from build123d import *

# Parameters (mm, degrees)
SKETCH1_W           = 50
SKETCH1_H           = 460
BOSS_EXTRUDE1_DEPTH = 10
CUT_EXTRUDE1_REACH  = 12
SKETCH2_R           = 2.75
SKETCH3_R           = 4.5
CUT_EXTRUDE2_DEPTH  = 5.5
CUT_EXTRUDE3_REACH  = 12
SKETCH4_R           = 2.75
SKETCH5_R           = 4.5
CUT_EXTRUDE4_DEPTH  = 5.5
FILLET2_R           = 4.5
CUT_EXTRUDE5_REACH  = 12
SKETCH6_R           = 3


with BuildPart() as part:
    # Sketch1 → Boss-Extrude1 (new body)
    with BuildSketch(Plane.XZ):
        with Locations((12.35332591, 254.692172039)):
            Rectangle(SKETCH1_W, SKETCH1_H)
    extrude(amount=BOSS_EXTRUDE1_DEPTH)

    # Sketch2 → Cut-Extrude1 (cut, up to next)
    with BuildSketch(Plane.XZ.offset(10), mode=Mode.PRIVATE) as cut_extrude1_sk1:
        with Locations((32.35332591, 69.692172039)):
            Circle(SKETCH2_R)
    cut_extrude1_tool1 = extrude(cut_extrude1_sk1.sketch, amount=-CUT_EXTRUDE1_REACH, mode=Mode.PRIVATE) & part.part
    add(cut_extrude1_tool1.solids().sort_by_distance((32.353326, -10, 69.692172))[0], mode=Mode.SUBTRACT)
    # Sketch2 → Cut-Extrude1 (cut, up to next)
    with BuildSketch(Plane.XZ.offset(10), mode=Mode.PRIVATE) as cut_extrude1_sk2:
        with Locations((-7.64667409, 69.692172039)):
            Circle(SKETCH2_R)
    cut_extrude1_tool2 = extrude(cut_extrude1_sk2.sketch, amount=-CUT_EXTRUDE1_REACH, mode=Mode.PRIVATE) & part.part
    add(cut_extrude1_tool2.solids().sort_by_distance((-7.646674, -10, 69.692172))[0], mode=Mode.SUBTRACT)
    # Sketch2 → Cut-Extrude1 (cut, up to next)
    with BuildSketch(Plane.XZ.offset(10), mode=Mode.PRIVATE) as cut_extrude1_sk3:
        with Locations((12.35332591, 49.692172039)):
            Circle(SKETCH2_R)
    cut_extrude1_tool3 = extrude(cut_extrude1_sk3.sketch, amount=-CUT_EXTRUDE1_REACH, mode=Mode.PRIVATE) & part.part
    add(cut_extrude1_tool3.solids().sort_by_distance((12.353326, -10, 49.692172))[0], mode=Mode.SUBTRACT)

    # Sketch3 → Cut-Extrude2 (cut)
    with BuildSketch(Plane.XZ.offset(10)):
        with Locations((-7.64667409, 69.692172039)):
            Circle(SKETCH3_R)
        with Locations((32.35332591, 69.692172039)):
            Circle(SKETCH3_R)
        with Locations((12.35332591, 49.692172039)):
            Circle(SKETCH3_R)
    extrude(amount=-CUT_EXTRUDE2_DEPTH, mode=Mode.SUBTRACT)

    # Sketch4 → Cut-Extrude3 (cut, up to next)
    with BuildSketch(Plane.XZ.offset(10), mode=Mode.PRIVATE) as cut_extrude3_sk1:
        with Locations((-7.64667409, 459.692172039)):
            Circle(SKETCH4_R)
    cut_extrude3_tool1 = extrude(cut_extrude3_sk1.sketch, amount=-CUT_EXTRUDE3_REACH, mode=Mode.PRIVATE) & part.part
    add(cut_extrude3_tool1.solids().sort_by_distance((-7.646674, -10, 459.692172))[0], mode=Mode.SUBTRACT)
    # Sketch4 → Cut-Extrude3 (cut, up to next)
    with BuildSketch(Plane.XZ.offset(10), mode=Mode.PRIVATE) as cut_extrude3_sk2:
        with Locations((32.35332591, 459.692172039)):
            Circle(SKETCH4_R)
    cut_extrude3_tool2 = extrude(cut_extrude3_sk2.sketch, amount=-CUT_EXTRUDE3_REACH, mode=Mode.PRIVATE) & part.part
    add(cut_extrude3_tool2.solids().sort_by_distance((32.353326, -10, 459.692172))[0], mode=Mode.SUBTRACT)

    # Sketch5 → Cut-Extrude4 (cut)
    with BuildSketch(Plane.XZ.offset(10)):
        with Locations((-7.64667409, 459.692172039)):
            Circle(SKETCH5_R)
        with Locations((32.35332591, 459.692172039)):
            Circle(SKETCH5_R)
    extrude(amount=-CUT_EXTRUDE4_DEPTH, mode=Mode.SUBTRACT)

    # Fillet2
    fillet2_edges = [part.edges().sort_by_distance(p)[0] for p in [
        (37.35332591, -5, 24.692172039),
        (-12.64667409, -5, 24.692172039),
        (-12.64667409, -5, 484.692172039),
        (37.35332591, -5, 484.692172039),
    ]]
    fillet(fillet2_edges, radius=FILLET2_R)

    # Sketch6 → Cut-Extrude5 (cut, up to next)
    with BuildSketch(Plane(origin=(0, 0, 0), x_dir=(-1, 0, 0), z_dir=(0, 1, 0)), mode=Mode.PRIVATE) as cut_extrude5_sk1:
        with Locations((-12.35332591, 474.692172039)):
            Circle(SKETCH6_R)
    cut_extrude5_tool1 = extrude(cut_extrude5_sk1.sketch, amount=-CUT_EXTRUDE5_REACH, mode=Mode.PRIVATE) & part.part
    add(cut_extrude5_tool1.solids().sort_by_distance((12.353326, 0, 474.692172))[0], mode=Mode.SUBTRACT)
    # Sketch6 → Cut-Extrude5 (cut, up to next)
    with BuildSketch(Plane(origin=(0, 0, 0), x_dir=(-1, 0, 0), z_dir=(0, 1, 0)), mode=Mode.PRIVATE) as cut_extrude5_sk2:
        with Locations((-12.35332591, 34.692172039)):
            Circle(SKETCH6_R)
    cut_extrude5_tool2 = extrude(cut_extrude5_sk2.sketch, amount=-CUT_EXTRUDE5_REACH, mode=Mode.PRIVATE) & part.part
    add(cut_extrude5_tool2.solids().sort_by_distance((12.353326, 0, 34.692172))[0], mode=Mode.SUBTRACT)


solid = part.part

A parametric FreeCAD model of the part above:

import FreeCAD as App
import Part
import Sketcher
Q = App.Units.Quantity


def edges_at(feature, points):
    """Names of the edges that pass closest to the given points."""
    edges = feature.Shape.Edges
    near = lambda p: min(range(len(edges)), key=lambda i: edges[i].distToShape(Part.Vertex(*p))[0])
    return sorted({f"Edge{near(p) + 1}" for p in points})


def add_polygon(sketch, points):
    """Adds a closed chain of lines whose ends are joined by coincident constraints."""
    first, n = sketch.GeometryCount, len(points)
    for a, b in zip(points, points[1:] + points[:1]):
        sketch.addGeometry(Part.LineSegment(App.Vector(*a, 0), App.Vector(*b, 0)), False)
    for i in range(n):
        sketch.addConstraint(Sketcher.Constraint("Coincident", first + i, 2, first + (i + 1) % n, 1))

doc = App.newDocument("Part")
params = doc.addObject("Spreadsheet::Sheet", "Params")
for row, (alias, value) in enumerate([
    ("sketch1_width", "50 mm"),
    ("sketch1_height", "460 mm"),
    ("pad1_length", "10 mm"),
    ("sketch2_diameter", "5.5 mm"),
    ("sketch3_diameter", "5.5 mm"),
    ("sketch4_diameter", "5.5 mm"),
    ("sketch5_diameter", "9 mm"),
    ("pocket4_length", "5.5 mm"),
    ("sketch6_diameter", "5.5 mm"),
    ("sketch7_diameter", "5.5 mm"),
    ("sketch8_diameter", "9 mm"),
    ("pocket7_length", "5.5 mm"),
    ("fillet_radius", "4.5 mm"),
    ("sketch9_diameter", "6 mm"),
    ("sketch10_diameter", "6 mm"),
], start=1):
    params.set(f"A{row}", alias)
    params.set(f"B{row}", "=" + value)
    params.setAlias(f"B{row}", alias)

body = doc.addObject("PartDesign::Body", "Body")

# Sketch on XZ plane
sketch1 = body.newObject("Sketcher::SketchObject", "Sketch")
sketch1.AttachmentSupport = (doc.getObject("XZ_Plane"), [""])
sketch1.MapMode = "FlatFace"
add_polygon(sketch1, [(-12.646674, 484.692172), (-12.646674, 24.692172), (37.353326, 24.692172), (37.353326, 484.692172)])  # lines 0-3
sketch1.addConstraint([
    Sketcher.Constraint("Vertical", 0),
    Sketcher.Constraint("Horizontal", 1),
    Sketcher.Constraint("Vertical", 2),
    Sketcher.Constraint("Horizontal", 3),
    Sketcher.Constraint("DistanceX", 1, 1, 1, 2, Q("50 mm")),
    Sketcher.Constraint("DistanceY", 0, 2, 0, 1, Q("460 mm")),
    Sketcher.Constraint("DistanceX", 0, 2, -1, 1, Q("12.646674 mm")),
    Sketcher.Constraint("DistanceY", -1, 1, 0, 2, Q("24.692172 mm")),
])
sketch1.setExpression("Constraints[8]", "Params.sketch1_width")
sketch1.setExpression("Constraints[9]", "Params.sketch1_height")
pad1 = body.newObject("PartDesign::Pad", "Pad")
pad1.Profile = sketch1
pad1.setExpression("Length", "Params.pad1_length")

# Sketch on XZ plane
sketch2 = body.newObject("Sketcher::SketchObject", "Sketch001")
sketch2.AttachmentSupport = (doc.getObject("XZ_Plane"), [""])
sketch2.MapMode = "FlatFace"
sketch2.AttachmentOffset = App.Placement(App.Vector(0, 0, 10), App.Rotation())
sketch2.addGeometry(Part.Circle(App.Vector(32.353326, 69.692172, 0), App.Vector(0, 0, 1), 2.75), False)
sketch2.addConstraint([
    Sketcher.Constraint("Diameter", 0, Q("5.5 mm")),
    Sketcher.Constraint("DistanceX", -1, 1, 0, 3, Q("32.353326 mm")),
    Sketcher.Constraint("DistanceY", -1, 1, 0, 3, Q("69.692172 mm")),
])
sketch2.setExpression("Constraints[0]", "Params.sketch2_diameter")
pocket1 = body.newObject("PartDesign::Pocket", "Pocket")
pocket1.Profile = sketch2
pocket1.Type = "UpToFirst"

# Sketch on XZ plane
sketch3 = body.newObject("Sketcher::SketchObject", "Sketch002")
sketch3.AttachmentSupport = (doc.getObject("XZ_Plane"), [""])
sketch3.MapMode = "FlatFace"
sketch3.AttachmentOffset = App.Placement(App.Vector(0, 0, 10), App.Rotation())
sketch3.addGeometry(Part.Circle(App.Vector(-7.646674, 69.692172, 0), App.Vector(0, 0, 1), 2.75), False)
sketch3.addConstraint([
    Sketcher.Constraint("Diameter", 0, Q("5.5 mm")),
    Sketcher.Constraint("DistanceX", 0, 3, -1, 1, Q("7.646674 mm")),
    Sketcher.Constraint("DistanceY", -1, 1, 0, 3, Q("69.692172 mm")),
])
sketch3.setExpression("Constraints[0]", "Params.sketch3_diameter")
pocket2 = body.newObject("PartDesign::Pocket", "Pocket001")
pocket2.Profile = sketch3
pocket2.Type = "UpToFirst"

# Sketch on XZ plane
sketch4 = body.newObject("Sketcher::SketchObject", "Sketch003")
sketch4.AttachmentSupport = (doc.getObject("XZ_Plane"), [""])
sketch4.MapMode = "FlatFace"
sketch4.AttachmentOffset = App.Placement(App.Vector(0, 0, 10), App.Rotation())
sketch4.addGeometry(Part.Circle(App.Vector(12.353326, 49.692172, 0), App.Vector(0, 0, 1), 2.75), False)
sketch4.addConstraint([
    Sketcher.Constraint("Diameter", 0, Q("5.5 mm")),
    Sketcher.Constraint("DistanceX", -1, 1, 0, 3, Q("12.353326 mm")),
    Sketcher.Constraint("DistanceY", -1, 1, 0, 3, Q("49.692172 mm")),
])
sketch4.setExpression("Constraints[0]", "Params.sketch4_diameter")
pocket3 = body.newObject("PartDesign::Pocket", "Pocket002")
pocket3.Profile = sketch4
pocket3.Type = "UpToFirst"

# Sketch on XZ plane
sketch5 = body.newObject("Sketcher::SketchObject", "Sketch004")
sketch5.AttachmentSupport = (doc.getObject("XZ_Plane"), [""])
sketch5.MapMode = "FlatFace"
sketch5.AttachmentOffset = App.Placement(App.Vector(0, 0, 10), App.Rotation())
sketch5.addGeometry([
    Part.Circle(App.Vector(-7.646674, 69.692172, 0), App.Vector(0, 0, 1), 4.5),
    Part.Circle(App.Vector(32.353326, 69.692172, 0), App.Vector(0, 0, 1), 4.5),
    Part.Circle(App.Vector(12.353326, 49.692172, 0), App.Vector(0, 0, 1), 4.5),
], False)
sketch5.addConstraint([
    Sketcher.Constraint("Equal", 0, 1),
    Sketcher.Constraint("Equal", 1, 2),
    Sketcher.Constraint("Horizontal", 0, 3, 1, 3),
    Sketcher.Constraint("Diameter", 0, Q("9 mm")),
    Sketcher.Constraint("DistanceX", 0, 3, 1, 3, Q("40 mm")),
    Sketcher.Constraint("DistanceX", 0, 3, 2, 3, Q("20 mm")),
    Sketcher.Constraint("DistanceY", 2, 3, 0, 3, Q("20 mm")),
    Sketcher.Constraint("DistanceX", 0, 3, -1, 1, Q("7.646674 mm")),
    Sketcher.Constraint("DistanceY", -1, 1, 0, 3, Q("69.692172 mm")),
])
sketch5.setExpression("Constraints[3]", "Params.sketch5_diameter")
pocket4 = body.newObject("PartDesign::Pocket", "Pocket003")
pocket4.Profile = sketch5
pocket4.setExpression("Length", "Params.pocket4_length")

# Sketch on XZ plane
sketch6 = body.newObject("Sketcher::SketchObject", "Sketch005")
sketch6.AttachmentSupport = (doc.getObject("XZ_Plane"), [""])
sketch6.MapMode = "FlatFace"
sketch6.AttachmentOffset = App.Placement(App.Vector(0, 0, 10), App.Rotation())
sketch6.addGeometry(Part.Circle(App.Vector(-7.646674, 459.692172, 0), App.Vector(0, 0, 1), 2.75), False)
sketch6.addConstraint([
    Sketcher.Constraint("Diameter", 0, Q("5.5 mm")),
    Sketcher.Constraint("DistanceX", 0, 3, -1, 1, Q("7.646674 mm")),
    Sketcher.Constraint("DistanceY", -1, 1, 0, 3, Q("459.692172 mm")),
])
sketch6.setExpression("Constraints[0]", "Params.sketch6_diameter")
pocket5 = body.newObject("PartDesign::Pocket", "Pocket004")
pocket5.Profile = sketch6
pocket5.Type = "UpToFirst"

# Sketch on XZ plane
sketch7 = body.newObject("Sketcher::SketchObject", "Sketch006")
sketch7.AttachmentSupport = (doc.getObject("XZ_Plane"), [""])
sketch7.MapMode = "FlatFace"
sketch7.AttachmentOffset = App.Placement(App.Vector(0, 0, 10), App.Rotation())
sketch7.addGeometry(Part.Circle(App.Vector(32.353326, 459.692172, 0), App.Vector(0, 0, 1), 2.75), False)
sketch7.addConstraint([
    Sketcher.Constraint("Diameter", 0, Q("5.5 mm")),
    Sketcher.Constraint("DistanceX", -1, 1, 0, 3, Q("32.353326 mm")),
    Sketcher.Constraint("DistanceY", -1, 1, 0, 3, Q("459.692172 mm")),
])
sketch7.setExpression("Constraints[0]", "Params.sketch7_diameter")
pocket6 = body.newObject("PartDesign::Pocket", "Pocket005")
pocket6.Profile = sketch7
pocket6.Type = "UpToFirst"

# Sketch on XZ plane
sketch8 = body.newObject("Sketcher::SketchObject", "Sketch007")
sketch8.AttachmentSupport = (doc.getObject("XZ_Plane"), [""])
sketch8.MapMode = "FlatFace"
sketch8.AttachmentOffset = App.Placement(App.Vector(0, 0, 10), App.Rotation())
sketch8.addGeometry([
    Part.Circle(App.Vector(-7.646674, 459.692172, 0), App.Vector(0, 0, 1), 4.5),
    Part.Circle(App.Vector(32.353326, 459.692172, 0), App.Vector(0, 0, 1), 4.5),
], False)
sketch8.addConstraint([
    Sketcher.Constraint("Equal", 0, 1),
    Sketcher.Constraint("Horizontal", 0, 3, 1, 3),
    Sketcher.Constraint("Diameter", 0, Q("9 mm")),
    Sketcher.Constraint("DistanceX", 0, 3, 1, 3, Q("40 mm")),
    Sketcher.Constraint("DistanceX", 0, 3, -1, 1, Q("7.646674 mm")),
    Sketcher.Constraint("DistanceY", -1, 1, 0, 3, Q("459.692172 mm")),
])
sketch8.setExpression("Constraints[2]", "Params.sketch8_diameter")
pocket7 = body.newObject("PartDesign::Pocket", "Pocket006")
pocket7.Profile = sketch8
pocket7.setExpression("Length", "Params.pocket7_length")
doc.recompute()

fillet = body.newObject("PartDesign::Fillet", "Fillet")
fillet.Base = (pocket7, edges_at(pocket7, [
    (37.353, -5, 24.692),
    (-12.647, -5, 24.692),
    (-12.647, -5, 484.692),
    (37.353, -5, 484.692),
]))
fillet.setExpression("Radius", "Params.fillet_radius")

# Sketch on XZ plane
sketch9 = body.newObject("Sketcher::SketchObject", "Sketch008")
sketch9.AttachmentSupport = (doc.getObject("XZ_Plane"), [""])
sketch9.MapMode = "FlatFace"
sketch9.addGeometry(Part.Circle(App.Vector(12.353326, 474.692172, 0), App.Vector(0, 0, 1), 3), False)
sketch9.addConstraint([
    Sketcher.Constraint("Diameter", 0, Q("6 mm")),
    Sketcher.Constraint("DistanceX", -1, 1, 0, 3, Q("12.353326 mm")),
    Sketcher.Constraint("DistanceY", -1, 1, 0, 3, Q("474.692172 mm")),
])
sketch9.setExpression("Constraints[0]", "Params.sketch9_diameter")
pocket8 = body.newObject("PartDesign::Pocket", "Pocket007")
pocket8.Profile = sketch9
pocket8.Type = "UpToFirst"
pocket8.Reversed = True

# Sketch on XZ plane
sketch10 = body.newObject("Sketcher::SketchObject", "Sketch009")
sketch10.AttachmentSupport = (doc.getObject("XZ_Plane"), [""])
sketch10.MapMode = "FlatFace"
sketch10.addGeometry(Part.Circle(App.Vector(12.353326, 34.692172, 0), App.Vector(0, 0, 1), 3), False)
sketch10.addConstraint([
    Sketcher.Constraint("Diameter", 0, Q("6 mm")),
    Sketcher.Constraint("DistanceX", -1, 1, 0, 3, Q("12.353326 mm")),
    Sketcher.Constraint("DistanceY", -1, 1, 0, 3, Q("34.692172 mm")),
])
sketch10.setExpression("Constraints[0]", "Params.sketch10_diameter")
pocket9 = body.newObject("PartDesign::Pocket", "Pocket008")
pocket9.Profile = sketch10
pocket9.Type = "UpToFirst"
pocket9.Reversed = True

doc.recompute()
